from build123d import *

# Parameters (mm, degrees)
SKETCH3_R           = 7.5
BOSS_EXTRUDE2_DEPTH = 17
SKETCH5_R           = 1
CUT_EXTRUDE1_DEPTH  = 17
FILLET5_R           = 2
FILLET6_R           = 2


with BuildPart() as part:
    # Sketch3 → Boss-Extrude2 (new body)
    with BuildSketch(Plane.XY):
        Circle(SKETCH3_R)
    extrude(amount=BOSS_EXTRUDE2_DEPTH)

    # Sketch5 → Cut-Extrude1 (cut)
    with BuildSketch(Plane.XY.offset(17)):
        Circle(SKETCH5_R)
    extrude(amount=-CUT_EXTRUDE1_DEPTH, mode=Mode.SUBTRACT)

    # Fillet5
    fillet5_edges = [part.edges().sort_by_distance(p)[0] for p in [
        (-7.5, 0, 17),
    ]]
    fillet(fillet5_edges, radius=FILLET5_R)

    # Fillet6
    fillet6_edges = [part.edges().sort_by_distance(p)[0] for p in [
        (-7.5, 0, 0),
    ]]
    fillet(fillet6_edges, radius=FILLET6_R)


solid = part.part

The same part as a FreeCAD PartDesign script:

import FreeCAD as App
import Part
import Sketcher
from FreeCAD import Vector


def edges_at(feature, points):
    """Names of the edges that pass closest to the given points."""
    edges = feature.Shape.Edges
    near = lambda p: min(range(len(edges)), key=lambda i: edges[i].distToShape(Part.Vertex(*p))[0])
    return sorted({f"Edge{near(p) + 1}" for p in points})

doc = App.newDocument("Part")
params = doc.addObject("Spreadsheet::Sheet", "Params")
for row, (alias, value) in enumerate([
    ("sketch1_diameter", "15 mm"),
    ("pad1_length", "17 mm"),
    ("sketch2_diameter", "2 mm"),
    ("pocket1_length", "17 mm"),
    ("fillet_radius", "2 mm"),
    ("fillet2_radius", "2 mm"),
], start=1):
    params.set(f"A{row}", alias)
    params.set(f"B{row}", "=" + value)
    params.setAlias(f"B{row}", alias)

body = doc.addObject("PartDesign::Body", "Body")

sketch1 = body.newObject("Sketcher::SketchObject", "Sketch")
sketch1.AttachmentSupport = (doc.getObject("XY_Plane"), [""])
sketch1.MapMode = "FlatFace"
sketch1.addGeometry(Part.Circle(Vector(0, 0, 0), Vector(0, 0, 1), 8), False)
sketch1.addConstraint([
    Sketcher.Constraint("Coincident", 0, 3, -1, 1),
    Sketcher.Constraint("Diameter", 0, 15.0),
])
sketch1.setExpression("Constraints[1]", "Params.sketch1_diameter")
pad1 = body.newObject("PartDesign::Pad", "Pad")
pad1.Profile = sketch1
pad1.setExpression("Length", "Params.pad1_length")

sketch2 = body.newObject("Sketcher::SketchObject", "Sketch001")
sketch2.AttachmentSupport = (doc.getObject("XY_Plane"), [""])
sketch2.MapMode = "FlatFace"
sketch2.AttachmentOffset = App.Placement(Vector(0, 0, 17), App.Rotation())
sketch2.addGeometry(Part.Circle(Vector(0, 0, 0), Vector(0, 0, 1), 1), False)
sketch2.addConstraint([
    Sketcher.Constraint("Coincident", 0, 3, -1, 1),
    Sketcher.Constraint("Diameter", 0, 2.0),
])
sketch2.setExpression("Constraints[1]", "Params.sketch2_diameter")
pocket1 = body.newObject("PartDesign::Pocket", "Pocket")
pocket1.Profile = sketch2
pocket1.setExpression("Length", "Params.pocket1_length")
doc.recompute()

fillet = body.newObject("PartDesign::Fillet", "Fillet")
fillet.Base = (pocket1, edges_at(pocket1, [(-7.5, 0, 17)]))
fillet.setExpression("Radius", "Params.fillet_radius")
doc.recompute()

fillet2 = body.newObject("PartDesign::Fillet", "Fillet001")
fillet2.Base = (fillet, edges_at(fillet, [(-7.5, 0, 0)]))
fillet2.setExpression("Radius", "Params.fillet2_radius")

doc.recompute()
